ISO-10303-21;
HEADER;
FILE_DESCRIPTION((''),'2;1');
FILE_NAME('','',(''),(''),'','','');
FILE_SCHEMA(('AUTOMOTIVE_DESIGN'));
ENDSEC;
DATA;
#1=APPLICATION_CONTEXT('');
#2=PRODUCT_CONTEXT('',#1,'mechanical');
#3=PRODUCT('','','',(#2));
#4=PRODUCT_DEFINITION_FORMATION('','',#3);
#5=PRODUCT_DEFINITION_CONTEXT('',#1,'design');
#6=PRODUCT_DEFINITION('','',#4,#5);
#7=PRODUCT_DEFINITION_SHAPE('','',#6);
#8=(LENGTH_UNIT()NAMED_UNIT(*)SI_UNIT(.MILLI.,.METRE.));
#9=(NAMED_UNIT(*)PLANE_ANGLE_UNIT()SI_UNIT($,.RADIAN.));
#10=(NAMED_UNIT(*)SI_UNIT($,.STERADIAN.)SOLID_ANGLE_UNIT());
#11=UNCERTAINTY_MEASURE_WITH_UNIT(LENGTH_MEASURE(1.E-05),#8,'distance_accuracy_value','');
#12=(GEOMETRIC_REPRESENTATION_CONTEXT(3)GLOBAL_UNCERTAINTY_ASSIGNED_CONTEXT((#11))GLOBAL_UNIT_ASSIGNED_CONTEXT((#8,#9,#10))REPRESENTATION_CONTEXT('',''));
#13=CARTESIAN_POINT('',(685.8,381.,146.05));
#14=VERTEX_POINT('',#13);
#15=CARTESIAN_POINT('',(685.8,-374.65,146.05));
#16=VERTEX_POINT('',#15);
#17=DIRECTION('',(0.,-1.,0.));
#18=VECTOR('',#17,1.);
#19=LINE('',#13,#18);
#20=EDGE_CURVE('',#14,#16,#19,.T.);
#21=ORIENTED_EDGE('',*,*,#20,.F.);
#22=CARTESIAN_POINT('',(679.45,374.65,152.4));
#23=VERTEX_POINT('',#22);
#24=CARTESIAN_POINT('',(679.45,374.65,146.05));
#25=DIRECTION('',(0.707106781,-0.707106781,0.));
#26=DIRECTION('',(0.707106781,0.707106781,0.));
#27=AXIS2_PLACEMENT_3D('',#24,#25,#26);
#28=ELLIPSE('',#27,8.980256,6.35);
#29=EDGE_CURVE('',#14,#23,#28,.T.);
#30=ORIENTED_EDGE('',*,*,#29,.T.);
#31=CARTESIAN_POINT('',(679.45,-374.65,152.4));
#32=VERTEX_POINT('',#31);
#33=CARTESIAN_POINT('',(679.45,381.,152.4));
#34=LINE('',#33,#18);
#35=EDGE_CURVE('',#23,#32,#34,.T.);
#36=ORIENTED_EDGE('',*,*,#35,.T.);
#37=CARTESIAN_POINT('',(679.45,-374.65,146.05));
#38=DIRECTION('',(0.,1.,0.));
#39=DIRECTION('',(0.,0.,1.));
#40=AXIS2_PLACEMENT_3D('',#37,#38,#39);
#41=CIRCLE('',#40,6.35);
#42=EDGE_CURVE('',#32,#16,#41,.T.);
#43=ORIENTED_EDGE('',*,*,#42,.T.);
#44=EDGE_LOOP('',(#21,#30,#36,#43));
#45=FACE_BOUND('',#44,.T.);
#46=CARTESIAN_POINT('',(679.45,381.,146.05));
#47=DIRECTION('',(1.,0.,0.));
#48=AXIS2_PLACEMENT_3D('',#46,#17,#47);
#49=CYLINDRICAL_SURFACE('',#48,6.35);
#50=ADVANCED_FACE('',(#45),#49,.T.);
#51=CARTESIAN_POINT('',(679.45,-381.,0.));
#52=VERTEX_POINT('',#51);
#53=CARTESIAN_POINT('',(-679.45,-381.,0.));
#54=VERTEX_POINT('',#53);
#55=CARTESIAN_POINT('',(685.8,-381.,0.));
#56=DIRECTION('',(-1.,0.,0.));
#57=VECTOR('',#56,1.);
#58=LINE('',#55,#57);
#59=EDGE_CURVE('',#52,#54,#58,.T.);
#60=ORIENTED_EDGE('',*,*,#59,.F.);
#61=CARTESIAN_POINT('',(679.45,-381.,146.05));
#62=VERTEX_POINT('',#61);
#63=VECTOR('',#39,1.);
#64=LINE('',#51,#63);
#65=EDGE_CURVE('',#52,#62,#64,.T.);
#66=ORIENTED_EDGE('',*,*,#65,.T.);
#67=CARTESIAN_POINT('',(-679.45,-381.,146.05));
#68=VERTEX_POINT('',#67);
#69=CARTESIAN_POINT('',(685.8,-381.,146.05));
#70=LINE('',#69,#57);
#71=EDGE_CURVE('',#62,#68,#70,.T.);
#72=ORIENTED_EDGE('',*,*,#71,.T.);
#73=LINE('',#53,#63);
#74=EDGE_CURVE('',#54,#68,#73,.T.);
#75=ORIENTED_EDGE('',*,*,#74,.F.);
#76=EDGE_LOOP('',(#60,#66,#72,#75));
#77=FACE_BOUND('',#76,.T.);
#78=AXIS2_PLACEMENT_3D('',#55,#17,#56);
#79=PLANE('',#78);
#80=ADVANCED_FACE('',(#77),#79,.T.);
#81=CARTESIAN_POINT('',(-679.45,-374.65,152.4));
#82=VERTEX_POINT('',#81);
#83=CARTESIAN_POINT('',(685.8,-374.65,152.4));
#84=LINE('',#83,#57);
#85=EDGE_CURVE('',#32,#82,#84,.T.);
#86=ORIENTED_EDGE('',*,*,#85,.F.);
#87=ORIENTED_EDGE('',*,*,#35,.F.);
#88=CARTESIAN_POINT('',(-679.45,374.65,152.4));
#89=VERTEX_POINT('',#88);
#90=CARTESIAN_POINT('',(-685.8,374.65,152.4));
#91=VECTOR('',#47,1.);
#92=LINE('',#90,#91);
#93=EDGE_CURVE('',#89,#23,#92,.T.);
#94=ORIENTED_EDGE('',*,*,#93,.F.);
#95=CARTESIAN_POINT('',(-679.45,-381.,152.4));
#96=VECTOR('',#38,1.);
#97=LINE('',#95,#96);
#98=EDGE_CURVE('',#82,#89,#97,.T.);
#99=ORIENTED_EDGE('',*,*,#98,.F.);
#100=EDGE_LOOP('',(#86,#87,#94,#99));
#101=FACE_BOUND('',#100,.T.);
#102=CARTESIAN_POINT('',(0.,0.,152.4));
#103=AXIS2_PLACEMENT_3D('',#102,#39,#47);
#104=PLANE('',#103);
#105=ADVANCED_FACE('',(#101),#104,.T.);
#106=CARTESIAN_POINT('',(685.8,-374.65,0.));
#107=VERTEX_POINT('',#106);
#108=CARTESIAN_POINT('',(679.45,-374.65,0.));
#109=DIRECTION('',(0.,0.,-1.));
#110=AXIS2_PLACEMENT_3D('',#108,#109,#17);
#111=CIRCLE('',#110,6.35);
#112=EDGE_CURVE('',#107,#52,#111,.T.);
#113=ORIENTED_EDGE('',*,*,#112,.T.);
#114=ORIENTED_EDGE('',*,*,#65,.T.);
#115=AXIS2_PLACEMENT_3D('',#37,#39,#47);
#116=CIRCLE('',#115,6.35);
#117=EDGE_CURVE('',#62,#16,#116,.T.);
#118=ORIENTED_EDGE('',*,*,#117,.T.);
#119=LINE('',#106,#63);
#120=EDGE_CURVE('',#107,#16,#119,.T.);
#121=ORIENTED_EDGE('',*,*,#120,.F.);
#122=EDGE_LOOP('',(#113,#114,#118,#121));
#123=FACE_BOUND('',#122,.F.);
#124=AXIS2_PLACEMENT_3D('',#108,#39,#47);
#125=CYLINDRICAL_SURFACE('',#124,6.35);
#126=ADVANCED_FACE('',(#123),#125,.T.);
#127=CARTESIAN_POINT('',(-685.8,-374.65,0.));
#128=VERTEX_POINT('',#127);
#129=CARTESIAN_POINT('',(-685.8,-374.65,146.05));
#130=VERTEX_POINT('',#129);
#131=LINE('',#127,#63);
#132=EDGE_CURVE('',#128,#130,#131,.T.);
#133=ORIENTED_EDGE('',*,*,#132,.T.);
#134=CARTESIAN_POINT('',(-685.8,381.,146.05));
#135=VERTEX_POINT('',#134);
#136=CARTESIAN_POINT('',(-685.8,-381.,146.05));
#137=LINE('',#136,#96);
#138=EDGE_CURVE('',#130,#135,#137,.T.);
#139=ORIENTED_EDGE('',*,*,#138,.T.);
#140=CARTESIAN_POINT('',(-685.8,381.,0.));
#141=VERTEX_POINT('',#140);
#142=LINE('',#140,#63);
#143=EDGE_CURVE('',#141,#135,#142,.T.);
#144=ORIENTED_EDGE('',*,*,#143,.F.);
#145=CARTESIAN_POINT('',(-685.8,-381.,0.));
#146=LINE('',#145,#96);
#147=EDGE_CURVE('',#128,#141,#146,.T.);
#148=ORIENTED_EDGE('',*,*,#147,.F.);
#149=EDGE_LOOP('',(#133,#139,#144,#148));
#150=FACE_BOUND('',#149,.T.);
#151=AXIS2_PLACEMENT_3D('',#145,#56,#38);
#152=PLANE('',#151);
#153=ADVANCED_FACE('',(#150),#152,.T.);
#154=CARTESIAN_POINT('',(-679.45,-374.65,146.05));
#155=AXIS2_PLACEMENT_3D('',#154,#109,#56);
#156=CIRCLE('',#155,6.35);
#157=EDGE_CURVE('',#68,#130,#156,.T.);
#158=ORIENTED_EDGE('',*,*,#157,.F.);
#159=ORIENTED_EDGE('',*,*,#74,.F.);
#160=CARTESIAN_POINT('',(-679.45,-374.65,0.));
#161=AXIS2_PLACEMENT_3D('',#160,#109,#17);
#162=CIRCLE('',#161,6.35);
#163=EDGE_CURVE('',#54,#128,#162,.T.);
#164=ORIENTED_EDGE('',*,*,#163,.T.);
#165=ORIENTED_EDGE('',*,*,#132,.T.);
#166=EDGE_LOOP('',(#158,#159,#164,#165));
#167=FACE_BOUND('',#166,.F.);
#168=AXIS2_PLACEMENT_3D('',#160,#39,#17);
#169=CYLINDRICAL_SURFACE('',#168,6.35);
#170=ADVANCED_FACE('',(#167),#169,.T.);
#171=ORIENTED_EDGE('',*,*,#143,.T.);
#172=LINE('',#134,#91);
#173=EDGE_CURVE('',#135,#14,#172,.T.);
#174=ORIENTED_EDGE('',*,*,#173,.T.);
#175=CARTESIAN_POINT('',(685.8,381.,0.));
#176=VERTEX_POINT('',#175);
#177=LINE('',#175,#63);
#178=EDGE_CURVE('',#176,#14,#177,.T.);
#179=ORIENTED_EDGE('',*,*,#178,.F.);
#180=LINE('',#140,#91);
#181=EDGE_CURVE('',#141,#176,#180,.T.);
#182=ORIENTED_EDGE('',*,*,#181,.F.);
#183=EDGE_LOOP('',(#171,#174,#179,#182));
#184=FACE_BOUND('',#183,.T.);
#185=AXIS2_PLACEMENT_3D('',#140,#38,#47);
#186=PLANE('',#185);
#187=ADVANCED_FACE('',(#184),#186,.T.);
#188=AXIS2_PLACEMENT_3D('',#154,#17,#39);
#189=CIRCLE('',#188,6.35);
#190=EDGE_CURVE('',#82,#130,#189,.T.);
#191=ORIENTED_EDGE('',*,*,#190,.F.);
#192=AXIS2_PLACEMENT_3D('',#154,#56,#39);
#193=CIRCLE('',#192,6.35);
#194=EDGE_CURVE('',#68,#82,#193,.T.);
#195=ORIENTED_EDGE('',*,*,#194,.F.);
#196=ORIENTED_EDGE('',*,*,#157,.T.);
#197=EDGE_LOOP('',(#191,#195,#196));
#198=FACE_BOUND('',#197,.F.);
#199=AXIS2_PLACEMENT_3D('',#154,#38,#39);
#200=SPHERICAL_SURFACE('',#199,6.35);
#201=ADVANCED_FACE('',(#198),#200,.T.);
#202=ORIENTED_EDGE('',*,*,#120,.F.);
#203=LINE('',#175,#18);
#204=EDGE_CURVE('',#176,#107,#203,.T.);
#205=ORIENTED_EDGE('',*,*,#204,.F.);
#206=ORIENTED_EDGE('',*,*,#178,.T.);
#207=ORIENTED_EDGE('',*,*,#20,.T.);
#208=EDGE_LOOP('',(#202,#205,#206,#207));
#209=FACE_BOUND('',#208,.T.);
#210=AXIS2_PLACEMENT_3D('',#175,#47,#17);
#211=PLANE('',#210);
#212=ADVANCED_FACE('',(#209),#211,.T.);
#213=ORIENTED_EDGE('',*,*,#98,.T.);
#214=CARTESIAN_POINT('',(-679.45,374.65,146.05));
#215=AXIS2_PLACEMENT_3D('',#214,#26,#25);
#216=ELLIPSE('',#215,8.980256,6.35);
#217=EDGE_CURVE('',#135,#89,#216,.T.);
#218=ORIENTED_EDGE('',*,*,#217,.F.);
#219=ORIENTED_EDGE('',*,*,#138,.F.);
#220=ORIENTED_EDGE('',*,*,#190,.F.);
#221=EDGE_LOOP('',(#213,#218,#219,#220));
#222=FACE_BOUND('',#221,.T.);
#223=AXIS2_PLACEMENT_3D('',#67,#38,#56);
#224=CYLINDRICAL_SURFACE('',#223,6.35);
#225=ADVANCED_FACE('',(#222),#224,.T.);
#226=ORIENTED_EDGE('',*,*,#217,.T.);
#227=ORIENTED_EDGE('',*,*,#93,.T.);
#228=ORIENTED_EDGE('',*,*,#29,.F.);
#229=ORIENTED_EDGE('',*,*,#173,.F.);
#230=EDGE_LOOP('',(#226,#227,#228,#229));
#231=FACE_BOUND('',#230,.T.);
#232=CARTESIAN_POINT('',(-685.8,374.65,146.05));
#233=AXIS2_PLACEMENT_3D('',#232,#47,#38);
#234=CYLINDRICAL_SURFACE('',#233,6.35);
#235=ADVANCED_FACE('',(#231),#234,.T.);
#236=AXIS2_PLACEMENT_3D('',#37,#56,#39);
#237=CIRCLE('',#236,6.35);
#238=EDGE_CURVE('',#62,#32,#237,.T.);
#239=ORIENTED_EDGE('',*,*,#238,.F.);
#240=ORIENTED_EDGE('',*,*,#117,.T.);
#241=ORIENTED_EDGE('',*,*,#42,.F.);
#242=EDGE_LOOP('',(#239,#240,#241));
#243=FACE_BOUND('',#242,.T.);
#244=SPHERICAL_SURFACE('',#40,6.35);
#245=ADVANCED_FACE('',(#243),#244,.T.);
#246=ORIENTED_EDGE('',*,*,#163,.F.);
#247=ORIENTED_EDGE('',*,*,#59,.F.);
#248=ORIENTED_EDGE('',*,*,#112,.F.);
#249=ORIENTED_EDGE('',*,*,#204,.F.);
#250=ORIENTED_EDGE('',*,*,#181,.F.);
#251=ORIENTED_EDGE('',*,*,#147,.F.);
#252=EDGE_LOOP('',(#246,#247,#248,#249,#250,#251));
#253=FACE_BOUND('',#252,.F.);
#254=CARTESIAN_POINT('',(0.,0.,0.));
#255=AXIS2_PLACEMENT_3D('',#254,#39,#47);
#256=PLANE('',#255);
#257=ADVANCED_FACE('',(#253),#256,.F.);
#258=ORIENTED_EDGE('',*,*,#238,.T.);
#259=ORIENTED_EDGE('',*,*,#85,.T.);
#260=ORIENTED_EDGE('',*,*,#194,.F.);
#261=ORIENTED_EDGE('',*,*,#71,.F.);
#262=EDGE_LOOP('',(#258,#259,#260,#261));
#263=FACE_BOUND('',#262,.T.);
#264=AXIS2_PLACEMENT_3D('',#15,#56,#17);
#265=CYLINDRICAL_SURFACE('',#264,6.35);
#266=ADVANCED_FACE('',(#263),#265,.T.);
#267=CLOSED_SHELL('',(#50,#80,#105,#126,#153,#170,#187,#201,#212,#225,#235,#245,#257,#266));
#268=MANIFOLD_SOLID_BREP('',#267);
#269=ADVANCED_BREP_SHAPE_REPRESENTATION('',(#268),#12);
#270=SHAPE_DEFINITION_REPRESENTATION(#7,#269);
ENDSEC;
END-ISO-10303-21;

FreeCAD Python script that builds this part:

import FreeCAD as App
import Part
import Sketcher
Q = App.Units.Quantity


def edges_at(feature, points):
    """Names of the edges that pass closest to the given points."""
    edges = feature.Shape.Edges
    near = lambda p: min(range(len(edges)), key=lambda i: edges[i].distToShape(Part.Vertex(*p))[0])
    return sorted({f"Edge{near(p) + 1}" for p in points})


def add_polygon(sketch, points):
    """Adds a closed chain of lines whose ends are joined by coincident constraints."""
    first, n = sketch.GeometryCount, len(points)
    for a, b in zip(points, points[1:] + points[:1]):
        sketch.addGeometry(Part.LineSegment(App.Vector(*a, 0), App.Vector(*b, 0)), False)
    for i in range(n):
        sketch.addConstraint(Sketcher.Constraint("Coincident", first + i, 2, first + (i + 1) % n, 1))

doc = App.newDocument("Part")
body = doc.addObject("PartDesign::Body", "Body")

sketch1 = doc.addObject("Sketcher::SketchObject", "Sketch")
body.addObject(sketch1)
sketch1.AttachmentSupport = (doc.XY_Plane, [""])
sketch1.MapMode = "FlatFace"
add_polygon(sketch1, [(686, 381), (-686, 381), (-686, -381), (686, -381)])
sketch1.addConstraint(Sketcher.Constraint("Horizontal", 0))
sketch1.addConstraint(Sketcher.Constraint("Vertical", 1))
sketch1.addConstraint(Sketcher.Constraint("Horizontal", 2))
sketch1.addConstraint(Sketcher.Constraint("Vertical", 3))
sketch1.addConstraint(Sketcher.Constraint("Symmetric", 0, 2, 2, 2, -1, 1))
sketch1.addConstraint(Sketcher.Constraint("DistanceX", 0, 2, 0, 1, Q("54 in")))
sketch1.addConstraint(Sketcher.Constraint("DistanceY", 1, 2, 1, 1, Q("30 in")))
pad1 = doc.addObject("PartDesign::Pad", "Pad")
body.addObject(pad1)
pad1.Profile = sketch1
pad1.Length = Q("6 in")
doc.recompute()

fillet = doc.addObject("PartDesign::Fillet", "Fillet")
body.addObject(fillet)
fillet.Base = (pad1, edges_at(pad1, [
    (0, 381, 152.4),
    (-685.8, 0, 152.4),
    (685.8, 0, 152.4),
    (0, -381, 152.4),
    (685.8, -381, 76.2),
    (-685.8, -381, 76.2),
]))
fillet.Radius = Q("0.25 in")

doc.recompute()
